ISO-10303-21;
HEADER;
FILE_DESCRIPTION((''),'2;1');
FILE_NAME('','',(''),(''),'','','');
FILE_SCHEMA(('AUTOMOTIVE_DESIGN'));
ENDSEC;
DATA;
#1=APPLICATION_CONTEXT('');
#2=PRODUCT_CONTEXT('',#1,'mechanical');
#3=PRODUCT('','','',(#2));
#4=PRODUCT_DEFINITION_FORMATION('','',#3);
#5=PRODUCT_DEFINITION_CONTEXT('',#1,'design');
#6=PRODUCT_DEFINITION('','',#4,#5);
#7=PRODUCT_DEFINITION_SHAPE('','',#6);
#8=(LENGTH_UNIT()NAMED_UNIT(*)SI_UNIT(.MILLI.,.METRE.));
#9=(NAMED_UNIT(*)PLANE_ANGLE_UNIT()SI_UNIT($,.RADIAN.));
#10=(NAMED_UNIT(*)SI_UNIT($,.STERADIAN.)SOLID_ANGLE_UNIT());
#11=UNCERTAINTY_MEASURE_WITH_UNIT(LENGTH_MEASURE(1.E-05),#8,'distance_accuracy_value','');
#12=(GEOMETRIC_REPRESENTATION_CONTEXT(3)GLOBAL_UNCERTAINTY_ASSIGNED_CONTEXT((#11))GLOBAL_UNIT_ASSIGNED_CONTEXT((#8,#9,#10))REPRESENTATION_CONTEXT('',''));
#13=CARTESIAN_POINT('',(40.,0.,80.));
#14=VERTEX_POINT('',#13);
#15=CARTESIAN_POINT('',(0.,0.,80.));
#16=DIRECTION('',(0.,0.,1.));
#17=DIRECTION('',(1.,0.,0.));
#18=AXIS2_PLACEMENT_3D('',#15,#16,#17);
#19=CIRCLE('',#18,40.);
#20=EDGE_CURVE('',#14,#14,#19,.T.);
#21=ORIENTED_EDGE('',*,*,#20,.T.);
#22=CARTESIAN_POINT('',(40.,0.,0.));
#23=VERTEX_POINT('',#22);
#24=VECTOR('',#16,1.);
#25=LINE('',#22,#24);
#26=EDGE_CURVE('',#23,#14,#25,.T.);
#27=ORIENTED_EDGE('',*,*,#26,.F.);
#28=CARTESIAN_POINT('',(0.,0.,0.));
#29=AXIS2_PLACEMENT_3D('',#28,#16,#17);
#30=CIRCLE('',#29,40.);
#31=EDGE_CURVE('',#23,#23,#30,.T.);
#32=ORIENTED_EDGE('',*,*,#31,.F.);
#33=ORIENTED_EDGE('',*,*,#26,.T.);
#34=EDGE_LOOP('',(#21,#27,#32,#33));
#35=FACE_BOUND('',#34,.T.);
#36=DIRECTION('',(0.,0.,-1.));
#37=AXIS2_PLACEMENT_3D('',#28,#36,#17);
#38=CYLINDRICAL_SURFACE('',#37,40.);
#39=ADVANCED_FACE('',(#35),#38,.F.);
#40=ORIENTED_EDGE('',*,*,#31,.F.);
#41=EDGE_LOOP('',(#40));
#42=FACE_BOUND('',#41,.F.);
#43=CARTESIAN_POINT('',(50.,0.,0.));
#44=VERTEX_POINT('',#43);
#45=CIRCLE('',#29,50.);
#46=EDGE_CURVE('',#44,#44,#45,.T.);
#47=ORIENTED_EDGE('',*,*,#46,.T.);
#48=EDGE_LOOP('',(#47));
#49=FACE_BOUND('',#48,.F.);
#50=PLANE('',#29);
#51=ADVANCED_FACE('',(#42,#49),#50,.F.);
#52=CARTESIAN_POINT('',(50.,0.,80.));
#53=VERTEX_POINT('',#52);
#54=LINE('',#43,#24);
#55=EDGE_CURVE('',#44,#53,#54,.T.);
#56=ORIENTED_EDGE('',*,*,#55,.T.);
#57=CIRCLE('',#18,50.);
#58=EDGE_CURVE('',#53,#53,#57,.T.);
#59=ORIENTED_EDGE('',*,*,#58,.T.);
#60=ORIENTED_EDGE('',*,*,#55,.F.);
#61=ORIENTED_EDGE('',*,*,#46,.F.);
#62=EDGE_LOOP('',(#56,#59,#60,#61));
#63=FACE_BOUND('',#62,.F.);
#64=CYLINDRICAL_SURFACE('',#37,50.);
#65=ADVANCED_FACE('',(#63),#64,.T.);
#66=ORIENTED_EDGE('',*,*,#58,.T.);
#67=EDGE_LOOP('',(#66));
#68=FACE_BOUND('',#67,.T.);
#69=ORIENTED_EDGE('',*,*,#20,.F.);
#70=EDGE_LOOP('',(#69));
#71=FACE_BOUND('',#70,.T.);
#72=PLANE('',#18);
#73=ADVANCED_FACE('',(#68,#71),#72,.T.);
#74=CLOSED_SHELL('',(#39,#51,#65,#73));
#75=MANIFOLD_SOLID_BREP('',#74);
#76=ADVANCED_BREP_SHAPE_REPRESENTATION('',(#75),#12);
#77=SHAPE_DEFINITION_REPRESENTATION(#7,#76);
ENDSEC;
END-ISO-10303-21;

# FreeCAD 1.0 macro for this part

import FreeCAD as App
import Part
import Sketcher
from FreeCAD import Vector

doc = App.newDocument("Part")
body = doc.addObject("PartDesign::Body", "Body")

# Sketch on XY plane
sketch1 = body.newObject("Sketcher::SketchObject", "Sketch")
sketch1.AttachmentSupport = (doc.getObject("XY_Plane"), [""])
sketch1.MapMode = "FlatFace"
sketch1.addGeometry(Part.Circle(Vector(0, 0, 0), Vector(0, 0, 1), 40), False)
sketch1.addConstraint([
    Sketcher.Constraint("Coincident", 0, 3, -1, 1),
    Sketcher.Constraint("Diameter", 0, 80.0),
])
pad1 = body.newObject("PartDesign::Pad", "Pad")
pad1.Profile = sketch1
pad1.Length = 80
body2 = doc.addObject("PartDesign::Body", "Body001")

# Sketch on XY plane
sketch2 = body2.newObject("Sketcher::SketchObject", "Sketch001")
sketch2.AttachmentSupport = (doc.getObject("XY_Plane001"), [""])
sketch2.MapMode = "FlatFace"
sketch2.addGeometry(Part.Circle(Vector(0, 0, 0), Vector(0, 0, 1), 50), False)
sketch2.addConstraint([
    Sketcher.Constraint("Coincident", 0, 3, -1, 1),
    Sketcher.Constraint("Diameter", 0, 100.0),
])
pad2 = body2.newObject("PartDesign::Pad", "Pad001")
pad2.Profile = sketch2
pad2.Length = 80
doc.recompute()

boolean = body2.newObject("PartDesign::Boolean", "Boolean")
boolean.Type = "Cut"
boolean.addObjects([body])

doc.recompute()
